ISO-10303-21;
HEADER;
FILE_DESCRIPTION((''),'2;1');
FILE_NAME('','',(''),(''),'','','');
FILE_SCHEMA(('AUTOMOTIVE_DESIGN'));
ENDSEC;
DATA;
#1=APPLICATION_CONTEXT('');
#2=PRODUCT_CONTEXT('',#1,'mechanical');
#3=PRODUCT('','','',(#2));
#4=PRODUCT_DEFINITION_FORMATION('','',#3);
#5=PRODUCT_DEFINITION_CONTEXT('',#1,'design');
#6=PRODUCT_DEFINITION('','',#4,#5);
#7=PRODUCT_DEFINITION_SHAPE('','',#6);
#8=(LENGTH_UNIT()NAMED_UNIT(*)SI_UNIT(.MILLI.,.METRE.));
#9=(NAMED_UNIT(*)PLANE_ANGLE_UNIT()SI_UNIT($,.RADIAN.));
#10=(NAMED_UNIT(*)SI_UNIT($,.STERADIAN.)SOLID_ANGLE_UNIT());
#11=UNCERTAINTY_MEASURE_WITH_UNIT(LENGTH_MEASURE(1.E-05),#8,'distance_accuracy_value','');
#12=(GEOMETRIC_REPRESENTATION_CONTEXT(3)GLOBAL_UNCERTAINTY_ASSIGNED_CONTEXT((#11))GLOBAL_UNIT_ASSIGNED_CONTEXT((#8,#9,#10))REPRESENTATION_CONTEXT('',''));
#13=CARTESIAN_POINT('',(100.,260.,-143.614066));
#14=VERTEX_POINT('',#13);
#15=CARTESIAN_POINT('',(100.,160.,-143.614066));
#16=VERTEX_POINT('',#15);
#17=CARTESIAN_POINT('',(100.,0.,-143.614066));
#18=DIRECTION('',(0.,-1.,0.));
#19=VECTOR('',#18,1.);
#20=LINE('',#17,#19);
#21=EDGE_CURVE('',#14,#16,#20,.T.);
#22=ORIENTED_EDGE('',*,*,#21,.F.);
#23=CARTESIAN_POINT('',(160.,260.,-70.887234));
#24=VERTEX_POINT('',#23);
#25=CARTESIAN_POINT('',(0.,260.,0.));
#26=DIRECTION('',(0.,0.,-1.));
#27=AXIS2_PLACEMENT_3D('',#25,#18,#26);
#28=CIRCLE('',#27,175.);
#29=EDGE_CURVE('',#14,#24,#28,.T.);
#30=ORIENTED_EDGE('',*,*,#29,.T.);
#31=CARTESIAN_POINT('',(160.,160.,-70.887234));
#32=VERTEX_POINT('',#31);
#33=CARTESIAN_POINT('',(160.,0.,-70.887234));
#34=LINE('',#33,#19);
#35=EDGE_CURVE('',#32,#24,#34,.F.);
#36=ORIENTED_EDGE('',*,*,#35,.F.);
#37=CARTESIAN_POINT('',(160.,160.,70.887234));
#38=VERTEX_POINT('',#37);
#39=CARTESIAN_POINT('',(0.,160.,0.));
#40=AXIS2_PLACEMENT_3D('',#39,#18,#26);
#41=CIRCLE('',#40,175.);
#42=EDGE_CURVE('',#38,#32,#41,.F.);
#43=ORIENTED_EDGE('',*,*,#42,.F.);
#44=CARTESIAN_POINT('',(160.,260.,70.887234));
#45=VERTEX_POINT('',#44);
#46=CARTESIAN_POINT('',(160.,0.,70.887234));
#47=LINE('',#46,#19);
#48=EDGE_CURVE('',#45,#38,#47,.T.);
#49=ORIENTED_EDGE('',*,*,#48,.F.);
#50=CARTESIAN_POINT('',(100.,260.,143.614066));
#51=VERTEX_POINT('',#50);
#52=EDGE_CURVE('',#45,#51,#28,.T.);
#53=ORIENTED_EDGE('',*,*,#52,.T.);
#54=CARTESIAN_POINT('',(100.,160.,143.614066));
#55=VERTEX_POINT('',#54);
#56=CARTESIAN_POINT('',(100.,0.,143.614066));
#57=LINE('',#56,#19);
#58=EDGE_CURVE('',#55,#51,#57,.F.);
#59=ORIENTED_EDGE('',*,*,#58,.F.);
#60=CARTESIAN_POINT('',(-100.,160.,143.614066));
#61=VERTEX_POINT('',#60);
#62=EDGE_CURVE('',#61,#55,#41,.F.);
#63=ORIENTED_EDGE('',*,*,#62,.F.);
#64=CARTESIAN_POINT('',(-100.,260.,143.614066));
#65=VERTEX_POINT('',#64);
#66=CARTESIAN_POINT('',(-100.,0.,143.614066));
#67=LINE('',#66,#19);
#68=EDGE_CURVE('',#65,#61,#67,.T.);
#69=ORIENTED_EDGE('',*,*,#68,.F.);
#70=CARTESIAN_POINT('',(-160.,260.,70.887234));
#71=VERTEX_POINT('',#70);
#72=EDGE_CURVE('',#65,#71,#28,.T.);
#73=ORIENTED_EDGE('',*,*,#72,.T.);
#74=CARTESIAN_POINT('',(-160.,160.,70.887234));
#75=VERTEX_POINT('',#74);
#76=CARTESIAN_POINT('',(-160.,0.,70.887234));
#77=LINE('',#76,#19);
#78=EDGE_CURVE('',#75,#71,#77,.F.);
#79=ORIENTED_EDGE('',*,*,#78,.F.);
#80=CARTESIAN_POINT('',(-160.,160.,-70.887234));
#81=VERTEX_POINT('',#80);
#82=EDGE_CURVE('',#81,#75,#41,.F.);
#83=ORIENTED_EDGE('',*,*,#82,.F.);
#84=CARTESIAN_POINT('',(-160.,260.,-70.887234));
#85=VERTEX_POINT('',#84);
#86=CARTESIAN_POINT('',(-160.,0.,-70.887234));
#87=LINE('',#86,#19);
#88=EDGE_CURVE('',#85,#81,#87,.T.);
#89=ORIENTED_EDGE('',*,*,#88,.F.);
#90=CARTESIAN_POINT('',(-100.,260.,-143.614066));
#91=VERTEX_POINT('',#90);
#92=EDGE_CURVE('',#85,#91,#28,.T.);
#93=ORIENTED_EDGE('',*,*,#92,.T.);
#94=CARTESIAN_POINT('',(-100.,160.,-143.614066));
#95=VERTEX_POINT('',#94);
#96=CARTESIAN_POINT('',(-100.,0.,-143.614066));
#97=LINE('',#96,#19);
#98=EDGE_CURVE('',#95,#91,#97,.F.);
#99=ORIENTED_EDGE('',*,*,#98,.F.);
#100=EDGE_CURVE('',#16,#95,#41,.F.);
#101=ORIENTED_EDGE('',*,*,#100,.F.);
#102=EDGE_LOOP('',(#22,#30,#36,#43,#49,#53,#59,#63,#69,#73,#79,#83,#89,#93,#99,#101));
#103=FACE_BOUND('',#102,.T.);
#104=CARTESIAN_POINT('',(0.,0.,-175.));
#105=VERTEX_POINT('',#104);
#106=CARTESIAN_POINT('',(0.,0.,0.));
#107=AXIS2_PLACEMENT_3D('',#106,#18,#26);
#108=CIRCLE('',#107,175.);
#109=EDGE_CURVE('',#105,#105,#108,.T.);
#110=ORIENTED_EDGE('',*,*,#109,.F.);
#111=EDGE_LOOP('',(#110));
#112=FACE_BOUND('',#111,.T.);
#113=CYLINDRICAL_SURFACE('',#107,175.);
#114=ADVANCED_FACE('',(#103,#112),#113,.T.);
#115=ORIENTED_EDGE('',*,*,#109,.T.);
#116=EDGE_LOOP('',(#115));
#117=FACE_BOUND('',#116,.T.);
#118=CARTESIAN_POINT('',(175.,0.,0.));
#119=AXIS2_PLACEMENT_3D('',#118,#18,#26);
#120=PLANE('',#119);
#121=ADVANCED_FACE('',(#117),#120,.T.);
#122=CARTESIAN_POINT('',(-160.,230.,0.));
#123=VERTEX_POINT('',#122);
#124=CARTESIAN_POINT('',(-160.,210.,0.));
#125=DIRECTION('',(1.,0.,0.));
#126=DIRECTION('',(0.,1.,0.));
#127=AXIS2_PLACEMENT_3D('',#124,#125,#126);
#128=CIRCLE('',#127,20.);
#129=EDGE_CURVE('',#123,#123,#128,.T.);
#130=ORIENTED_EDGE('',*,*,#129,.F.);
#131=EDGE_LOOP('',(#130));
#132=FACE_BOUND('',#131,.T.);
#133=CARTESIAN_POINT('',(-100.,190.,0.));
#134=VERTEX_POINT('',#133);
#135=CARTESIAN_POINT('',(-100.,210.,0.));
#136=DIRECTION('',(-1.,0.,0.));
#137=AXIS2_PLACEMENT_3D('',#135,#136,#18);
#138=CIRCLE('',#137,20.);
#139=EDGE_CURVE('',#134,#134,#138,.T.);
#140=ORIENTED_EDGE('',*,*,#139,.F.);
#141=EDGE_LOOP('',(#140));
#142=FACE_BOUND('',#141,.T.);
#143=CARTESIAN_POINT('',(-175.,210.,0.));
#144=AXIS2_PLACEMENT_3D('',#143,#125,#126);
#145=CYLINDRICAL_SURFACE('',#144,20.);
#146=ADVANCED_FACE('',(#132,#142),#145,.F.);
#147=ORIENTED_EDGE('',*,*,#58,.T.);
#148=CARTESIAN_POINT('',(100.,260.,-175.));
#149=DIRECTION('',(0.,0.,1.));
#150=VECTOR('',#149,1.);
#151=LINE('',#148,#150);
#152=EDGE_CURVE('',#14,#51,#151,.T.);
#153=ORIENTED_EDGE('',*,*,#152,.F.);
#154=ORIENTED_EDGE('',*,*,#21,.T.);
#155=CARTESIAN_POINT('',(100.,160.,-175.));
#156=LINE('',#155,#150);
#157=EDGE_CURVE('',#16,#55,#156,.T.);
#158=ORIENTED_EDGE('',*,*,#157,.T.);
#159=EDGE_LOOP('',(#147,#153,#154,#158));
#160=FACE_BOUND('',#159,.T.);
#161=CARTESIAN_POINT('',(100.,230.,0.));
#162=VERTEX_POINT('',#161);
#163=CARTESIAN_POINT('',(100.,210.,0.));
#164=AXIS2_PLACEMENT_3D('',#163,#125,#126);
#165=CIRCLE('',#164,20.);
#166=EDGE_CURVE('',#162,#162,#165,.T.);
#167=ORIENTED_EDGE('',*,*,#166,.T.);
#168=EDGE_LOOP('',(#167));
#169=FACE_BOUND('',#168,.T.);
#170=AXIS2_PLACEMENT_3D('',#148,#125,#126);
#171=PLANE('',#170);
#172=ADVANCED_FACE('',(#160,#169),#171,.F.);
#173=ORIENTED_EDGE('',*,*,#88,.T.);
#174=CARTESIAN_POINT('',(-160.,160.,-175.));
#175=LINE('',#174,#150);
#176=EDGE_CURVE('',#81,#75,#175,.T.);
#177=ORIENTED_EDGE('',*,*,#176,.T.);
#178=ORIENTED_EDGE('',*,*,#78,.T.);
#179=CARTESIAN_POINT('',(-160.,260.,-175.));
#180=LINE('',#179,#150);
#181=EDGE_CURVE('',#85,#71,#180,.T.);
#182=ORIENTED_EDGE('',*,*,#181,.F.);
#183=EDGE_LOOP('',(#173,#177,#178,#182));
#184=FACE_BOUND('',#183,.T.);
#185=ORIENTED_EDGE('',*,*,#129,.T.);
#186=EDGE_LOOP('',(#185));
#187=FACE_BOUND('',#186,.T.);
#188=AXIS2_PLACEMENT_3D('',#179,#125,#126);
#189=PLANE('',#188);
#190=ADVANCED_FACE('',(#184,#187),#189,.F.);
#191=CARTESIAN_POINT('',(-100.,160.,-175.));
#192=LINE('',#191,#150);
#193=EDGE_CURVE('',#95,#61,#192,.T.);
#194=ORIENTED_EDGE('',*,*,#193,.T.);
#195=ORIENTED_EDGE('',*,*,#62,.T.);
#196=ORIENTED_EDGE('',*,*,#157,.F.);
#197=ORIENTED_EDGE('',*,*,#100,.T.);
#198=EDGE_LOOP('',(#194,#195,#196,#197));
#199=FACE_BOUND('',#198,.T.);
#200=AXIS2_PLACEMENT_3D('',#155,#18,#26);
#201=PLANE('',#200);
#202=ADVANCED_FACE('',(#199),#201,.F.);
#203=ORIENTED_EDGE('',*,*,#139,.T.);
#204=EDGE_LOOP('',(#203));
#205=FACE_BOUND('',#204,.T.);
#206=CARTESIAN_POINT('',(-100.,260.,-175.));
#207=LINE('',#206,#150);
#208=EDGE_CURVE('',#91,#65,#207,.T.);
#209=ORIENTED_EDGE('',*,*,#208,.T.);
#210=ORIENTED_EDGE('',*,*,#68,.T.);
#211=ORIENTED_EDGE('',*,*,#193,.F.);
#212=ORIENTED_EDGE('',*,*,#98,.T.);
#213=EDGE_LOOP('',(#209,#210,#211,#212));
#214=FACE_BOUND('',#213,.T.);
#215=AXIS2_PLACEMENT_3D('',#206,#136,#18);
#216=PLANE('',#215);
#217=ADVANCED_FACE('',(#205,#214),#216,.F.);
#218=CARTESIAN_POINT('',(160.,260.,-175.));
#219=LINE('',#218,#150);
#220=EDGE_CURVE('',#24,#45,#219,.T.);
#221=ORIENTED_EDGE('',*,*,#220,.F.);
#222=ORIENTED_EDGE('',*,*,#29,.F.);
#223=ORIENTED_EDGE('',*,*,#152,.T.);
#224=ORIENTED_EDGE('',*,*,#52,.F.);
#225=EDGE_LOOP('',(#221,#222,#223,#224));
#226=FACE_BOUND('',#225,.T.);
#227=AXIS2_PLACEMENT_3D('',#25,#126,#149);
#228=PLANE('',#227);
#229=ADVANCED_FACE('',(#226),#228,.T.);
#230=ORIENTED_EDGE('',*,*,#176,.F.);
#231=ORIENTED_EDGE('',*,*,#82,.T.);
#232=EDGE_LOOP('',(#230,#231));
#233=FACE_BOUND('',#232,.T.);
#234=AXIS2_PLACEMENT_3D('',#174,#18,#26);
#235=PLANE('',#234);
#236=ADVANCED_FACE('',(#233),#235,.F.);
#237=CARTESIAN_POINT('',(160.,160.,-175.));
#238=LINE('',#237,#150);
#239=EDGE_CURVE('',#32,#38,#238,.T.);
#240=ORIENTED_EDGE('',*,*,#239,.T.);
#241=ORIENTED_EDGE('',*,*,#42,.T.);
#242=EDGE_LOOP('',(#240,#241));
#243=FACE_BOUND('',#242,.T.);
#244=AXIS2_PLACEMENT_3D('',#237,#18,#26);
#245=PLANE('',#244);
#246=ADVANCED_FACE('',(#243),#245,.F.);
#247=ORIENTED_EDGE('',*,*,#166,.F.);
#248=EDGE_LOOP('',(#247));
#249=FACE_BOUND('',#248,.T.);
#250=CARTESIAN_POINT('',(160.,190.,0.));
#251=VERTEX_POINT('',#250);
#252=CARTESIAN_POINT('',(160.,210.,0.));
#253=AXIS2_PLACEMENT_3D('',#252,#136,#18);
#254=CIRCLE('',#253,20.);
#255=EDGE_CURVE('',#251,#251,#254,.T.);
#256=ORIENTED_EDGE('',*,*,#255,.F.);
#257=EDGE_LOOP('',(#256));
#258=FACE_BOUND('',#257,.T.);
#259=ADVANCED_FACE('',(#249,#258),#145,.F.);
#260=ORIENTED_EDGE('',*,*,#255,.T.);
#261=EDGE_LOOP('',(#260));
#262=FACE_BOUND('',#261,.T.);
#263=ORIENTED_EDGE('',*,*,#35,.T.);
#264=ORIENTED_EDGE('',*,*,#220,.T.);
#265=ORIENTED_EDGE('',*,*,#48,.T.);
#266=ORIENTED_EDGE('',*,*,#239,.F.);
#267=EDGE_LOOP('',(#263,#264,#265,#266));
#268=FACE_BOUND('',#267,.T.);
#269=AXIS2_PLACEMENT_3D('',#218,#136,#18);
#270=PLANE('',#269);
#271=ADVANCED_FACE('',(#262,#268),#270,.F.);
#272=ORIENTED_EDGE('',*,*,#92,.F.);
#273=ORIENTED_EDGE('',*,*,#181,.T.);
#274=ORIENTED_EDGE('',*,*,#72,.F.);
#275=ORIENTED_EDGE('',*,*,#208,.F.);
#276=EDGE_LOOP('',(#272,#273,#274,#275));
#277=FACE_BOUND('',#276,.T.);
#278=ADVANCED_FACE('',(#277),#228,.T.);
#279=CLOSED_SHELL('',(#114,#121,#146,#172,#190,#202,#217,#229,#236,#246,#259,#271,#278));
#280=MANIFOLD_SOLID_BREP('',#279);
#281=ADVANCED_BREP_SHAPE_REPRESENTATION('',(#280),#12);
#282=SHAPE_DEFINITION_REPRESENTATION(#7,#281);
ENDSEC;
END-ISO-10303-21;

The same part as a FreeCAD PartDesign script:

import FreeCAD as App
import Part
import Sketcher
from FreeCAD import Vector

doc = App.newDocument("Part")
body = doc.addObject("PartDesign::Body", "Body")

sketch1 = body.newObject("Sketcher::SketchObject", "Sketch")
sketch1.AttachmentSupport = (doc.getObject("XY_Plane"), [""])
sketch1.MapMode = "FlatFace"
sketch1.addGeometry(Part.LineSegment(Vector(0, 260, 0), Vector(0, 0, 0)), False)
sketch1.addGeometry(Part.LineSegment(Vector(0, 0, 0), Vector(175, 0, 0)), False)
sketch1.addGeometry(Part.LineSegment(Vector(175, 0, 0), Vector(175, 260, 0)), False)
sketch1.addGeometry(Part.LineSegment(Vector(175, 260, 0), Vector(0, 260, 0)), False)
sketch1.addConstraint(Sketcher.Constraint("Coincident", 0, 2, 1, 1))
sketch1.addConstraint(Sketcher.Constraint("Coincident", 1, 2, 2, 1))
sketch1.addConstraint(Sketcher.Constraint("Coincident", 2, 2, 3, 1))
sketch1.addConstraint(Sketcher.Constraint("Coincident", 3, 2, 0, 1))
sketch1.addConstraint(Sketcher.Constraint("Vertical", 0))
sketch1.addConstraint(Sketcher.Constraint("Horizontal", 1))
sketch1.addConstraint(Sketcher.Constraint("Vertical", 2))
sketch1.addConstraint(Sketcher.Constraint("Horizontal", 3))
sketch1.addConstraint(Sketcher.Constraint("Coincident", 0, 2, -1, 1))
sketch1.addConstraint(Sketcher.Constraint("DistanceX", 1, 1, 1, 2, 175.0))
sketch1.addConstraint(Sketcher.Constraint("DistanceY", 0, 2, 0, 1, 260.0))
revolution = body.newObject("PartDesign::Revolution", "Revolution")
revolution.Profile = sketch1
revolution.ReferenceAxis = (sketch1, ["V_Axis"])
revolution.Angle = 360

sketch2 = body.newObject("Sketcher::SketchObject", "Sketch001")
sketch2.AttachmentSupport = (doc.getObject("XY_Plane"), [""])
sketch2.MapMode = "FlatFace"
sketch2.addGeometry(Part.LineSegment(Vector(-100, 260, 0), Vector(-100, 160, 0)), False)
sketch2.addGeometry(Part.LineSegment(Vector(-100, 160, 0), Vector(100, 160, 0)), False)
sketch2.addGeometry(Part.LineSegment(Vector(100, 160, 0), Vector(100, 260, 0)), False)
sketch2.addGeometry(Part.LineSegment(Vector(100, 260, 0), Vector(-100, 260, 0)), False)
sketch2.addGeometry(Part.LineSegment(Vector(160, 260, 0), Vector(160, 160, 0)), False)
sketch2.addGeometry(Part.LineSegment(Vector(160, 160, 0), Vector(175, 160, 0)), False)
sketch2.addGeometry(Part.LineSegment(Vector(175, 160, 0), Vector(175, 260, 0)), False)
sketch2.addGeometry(Part.LineSegment(Vector(175, 260, 0), Vector(160, 260, 0)), False)
sketch2.addGeometry(Part.LineSegment(Vector(-175, 260, 0), Vector(-175, 160, 0)), False)
sketch2.addGeometry(Part.LineSegment(Vector(-175, 160, 0), Vector(-160, 160, 0)), False)
sketch2.addGeometry(Part.LineSegment(Vector(-160, 160, 0), Vector(-160, 260, 0)), False)
sketch2.addGeometry(Part.LineSegment(Vector(-160, 260, 0), Vector(-175, 260, 0)), False)
sketch2.addConstraint(Sketcher.Constraint("Coincident", 0, 2, 1, 1))
sketch2.addConstraint(Sketcher.Constraint("Coincident", 1, 2, 2, 1))
sketch2.addConstraint(Sketcher.Constraint("Coincident", 2, 2, 3, 1))
sketch2.addConstraint(Sketcher.Constraint("Coincident", 3, 2, 0, 1))
sketch2.addConstraint(Sketcher.Constraint("Coincident", 4, 2, 5, 1))
sketch2.addConstraint(Sketcher.Constraint("Coincident", 5, 2, 6, 1))
sketch2.addConstraint(Sketcher.Constraint("Coincident", 6, 2, 7, 1))
sketch2.addConstraint(Sketcher.Constraint("Coincident", 7, 2, 4, 1))
sketch2.addConstraint(Sketcher.Constraint("Coincident", 8, 2, 9, 1))
sketch2.addConstraint(Sketcher.Constraint("Coincident", 9, 2, 10, 1))
sketch2.addConstraint(Sketcher.Constraint("Coincident", 10, 2, 11, 1))
sketch2.addConstraint(Sketcher.Constraint("Coincident", 11, 2, 8, 1))
sketch2.addConstraint(Sketcher.Constraint("Vertical", 0))
sketch2.addConstraint(Sketcher.Constraint("Horizontal", 1))
sketch2.addConstraint(Sketcher.Constraint("Vertical", 2))
sketch2.addConstraint(Sketcher.Constraint("Horizontal", 3))
sketch2.addConstraint(Sketcher.Constraint("Vertical", 4))
sketch2.addConstraint(Sketcher.Constraint("Horizontal", 5))
sketch2.addConstraint(Sketcher.Constraint("Vertical", 6))
sketch2.addConstraint(Sketcher.Constraint("Horizontal", 7))
sketch2.addConstraint(Sketcher.Constraint("Vertical", 8))
sketch2.addConstraint(Sketcher.Constraint("Horizontal", 9))
sketch2.addConstraint(Sketcher.Constraint("Vertical", 10))
sketch2.addConstraint(Sketcher.Constraint("Horizontal", 11))
sketch2.addConstraint(Sketcher.Constraint("Symmetric", 5, 2, 8, 2, -2))
sketch2.addConstraint(Sketcher.Constraint("Symmetric", 7, 2, 10, 2, -2))
sketch2.addConstraint(Sketcher.Constraint("Horizontal", 1, 2, 4, 2))
sketch2.addConstraint(Sketcher.Constraint("Horizontal", 3, 2, 6, 2))
sketch2.addConstraint(Sketcher.Constraint("DistanceX", 1, 1, 1, 2, 200.0))
sketch2.addConstraint(Sketcher.Constraint("DistanceX", 5, 1, 5, 2, 15.0))
sketch2.addConstraint(Sketcher.Constraint("DistanceY", 0, 2, 0, 1, 100.0))
sketch2.addConstraint(Sketcher.Constraint("DistanceX", 0, 2, -1, 1, 100.0))
sketch2.addConstraint(Sketcher.Constraint("DistanceY", -1, 1, 0, 2, 160.0))
sketch2.addConstraint(Sketcher.Constraint("DistanceX", -1, 1, 4, 2, 160.0))
pocket1 = body.newObject("PartDesign::Pocket", "Pocket")
pocket1.Profile = sketch2
pocket1.Type = "ThroughAll"
pocket1.Midplane = True

sketch3 = body.newObject("Sketcher::SketchObject", "Sketch002")
sketch3.AttachmentSupport = (doc.getObject("YZ_Plane"), [""])
sketch3.MapMode = "FlatFace"
sketch3.AttachmentOffset = App.Placement(Vector(0, 0, 160), App.Rotation())
sketch3.addGeometry(Part.Circle(Vector(210, 0, 0), Vector(0, 0, 1), 20), False)
sketch3.addConstraint(Sketcher.Constraint("PointOnObject", 0, 3, -1))
sketch3.addConstraint(Sketcher.Constraint("Diameter", 0, 40.0))
sketch3.addConstraint(Sketcher.Constraint("DistanceX", -1, 1, 0, 3, 210.0))
pocket2 = body.newObject("PartDesign::Pocket", "Pocket001")
pocket2.Profile = sketch3
pocket2.Type = "ThroughAll"
pocket2.Midplane = True

doc.recompute()
